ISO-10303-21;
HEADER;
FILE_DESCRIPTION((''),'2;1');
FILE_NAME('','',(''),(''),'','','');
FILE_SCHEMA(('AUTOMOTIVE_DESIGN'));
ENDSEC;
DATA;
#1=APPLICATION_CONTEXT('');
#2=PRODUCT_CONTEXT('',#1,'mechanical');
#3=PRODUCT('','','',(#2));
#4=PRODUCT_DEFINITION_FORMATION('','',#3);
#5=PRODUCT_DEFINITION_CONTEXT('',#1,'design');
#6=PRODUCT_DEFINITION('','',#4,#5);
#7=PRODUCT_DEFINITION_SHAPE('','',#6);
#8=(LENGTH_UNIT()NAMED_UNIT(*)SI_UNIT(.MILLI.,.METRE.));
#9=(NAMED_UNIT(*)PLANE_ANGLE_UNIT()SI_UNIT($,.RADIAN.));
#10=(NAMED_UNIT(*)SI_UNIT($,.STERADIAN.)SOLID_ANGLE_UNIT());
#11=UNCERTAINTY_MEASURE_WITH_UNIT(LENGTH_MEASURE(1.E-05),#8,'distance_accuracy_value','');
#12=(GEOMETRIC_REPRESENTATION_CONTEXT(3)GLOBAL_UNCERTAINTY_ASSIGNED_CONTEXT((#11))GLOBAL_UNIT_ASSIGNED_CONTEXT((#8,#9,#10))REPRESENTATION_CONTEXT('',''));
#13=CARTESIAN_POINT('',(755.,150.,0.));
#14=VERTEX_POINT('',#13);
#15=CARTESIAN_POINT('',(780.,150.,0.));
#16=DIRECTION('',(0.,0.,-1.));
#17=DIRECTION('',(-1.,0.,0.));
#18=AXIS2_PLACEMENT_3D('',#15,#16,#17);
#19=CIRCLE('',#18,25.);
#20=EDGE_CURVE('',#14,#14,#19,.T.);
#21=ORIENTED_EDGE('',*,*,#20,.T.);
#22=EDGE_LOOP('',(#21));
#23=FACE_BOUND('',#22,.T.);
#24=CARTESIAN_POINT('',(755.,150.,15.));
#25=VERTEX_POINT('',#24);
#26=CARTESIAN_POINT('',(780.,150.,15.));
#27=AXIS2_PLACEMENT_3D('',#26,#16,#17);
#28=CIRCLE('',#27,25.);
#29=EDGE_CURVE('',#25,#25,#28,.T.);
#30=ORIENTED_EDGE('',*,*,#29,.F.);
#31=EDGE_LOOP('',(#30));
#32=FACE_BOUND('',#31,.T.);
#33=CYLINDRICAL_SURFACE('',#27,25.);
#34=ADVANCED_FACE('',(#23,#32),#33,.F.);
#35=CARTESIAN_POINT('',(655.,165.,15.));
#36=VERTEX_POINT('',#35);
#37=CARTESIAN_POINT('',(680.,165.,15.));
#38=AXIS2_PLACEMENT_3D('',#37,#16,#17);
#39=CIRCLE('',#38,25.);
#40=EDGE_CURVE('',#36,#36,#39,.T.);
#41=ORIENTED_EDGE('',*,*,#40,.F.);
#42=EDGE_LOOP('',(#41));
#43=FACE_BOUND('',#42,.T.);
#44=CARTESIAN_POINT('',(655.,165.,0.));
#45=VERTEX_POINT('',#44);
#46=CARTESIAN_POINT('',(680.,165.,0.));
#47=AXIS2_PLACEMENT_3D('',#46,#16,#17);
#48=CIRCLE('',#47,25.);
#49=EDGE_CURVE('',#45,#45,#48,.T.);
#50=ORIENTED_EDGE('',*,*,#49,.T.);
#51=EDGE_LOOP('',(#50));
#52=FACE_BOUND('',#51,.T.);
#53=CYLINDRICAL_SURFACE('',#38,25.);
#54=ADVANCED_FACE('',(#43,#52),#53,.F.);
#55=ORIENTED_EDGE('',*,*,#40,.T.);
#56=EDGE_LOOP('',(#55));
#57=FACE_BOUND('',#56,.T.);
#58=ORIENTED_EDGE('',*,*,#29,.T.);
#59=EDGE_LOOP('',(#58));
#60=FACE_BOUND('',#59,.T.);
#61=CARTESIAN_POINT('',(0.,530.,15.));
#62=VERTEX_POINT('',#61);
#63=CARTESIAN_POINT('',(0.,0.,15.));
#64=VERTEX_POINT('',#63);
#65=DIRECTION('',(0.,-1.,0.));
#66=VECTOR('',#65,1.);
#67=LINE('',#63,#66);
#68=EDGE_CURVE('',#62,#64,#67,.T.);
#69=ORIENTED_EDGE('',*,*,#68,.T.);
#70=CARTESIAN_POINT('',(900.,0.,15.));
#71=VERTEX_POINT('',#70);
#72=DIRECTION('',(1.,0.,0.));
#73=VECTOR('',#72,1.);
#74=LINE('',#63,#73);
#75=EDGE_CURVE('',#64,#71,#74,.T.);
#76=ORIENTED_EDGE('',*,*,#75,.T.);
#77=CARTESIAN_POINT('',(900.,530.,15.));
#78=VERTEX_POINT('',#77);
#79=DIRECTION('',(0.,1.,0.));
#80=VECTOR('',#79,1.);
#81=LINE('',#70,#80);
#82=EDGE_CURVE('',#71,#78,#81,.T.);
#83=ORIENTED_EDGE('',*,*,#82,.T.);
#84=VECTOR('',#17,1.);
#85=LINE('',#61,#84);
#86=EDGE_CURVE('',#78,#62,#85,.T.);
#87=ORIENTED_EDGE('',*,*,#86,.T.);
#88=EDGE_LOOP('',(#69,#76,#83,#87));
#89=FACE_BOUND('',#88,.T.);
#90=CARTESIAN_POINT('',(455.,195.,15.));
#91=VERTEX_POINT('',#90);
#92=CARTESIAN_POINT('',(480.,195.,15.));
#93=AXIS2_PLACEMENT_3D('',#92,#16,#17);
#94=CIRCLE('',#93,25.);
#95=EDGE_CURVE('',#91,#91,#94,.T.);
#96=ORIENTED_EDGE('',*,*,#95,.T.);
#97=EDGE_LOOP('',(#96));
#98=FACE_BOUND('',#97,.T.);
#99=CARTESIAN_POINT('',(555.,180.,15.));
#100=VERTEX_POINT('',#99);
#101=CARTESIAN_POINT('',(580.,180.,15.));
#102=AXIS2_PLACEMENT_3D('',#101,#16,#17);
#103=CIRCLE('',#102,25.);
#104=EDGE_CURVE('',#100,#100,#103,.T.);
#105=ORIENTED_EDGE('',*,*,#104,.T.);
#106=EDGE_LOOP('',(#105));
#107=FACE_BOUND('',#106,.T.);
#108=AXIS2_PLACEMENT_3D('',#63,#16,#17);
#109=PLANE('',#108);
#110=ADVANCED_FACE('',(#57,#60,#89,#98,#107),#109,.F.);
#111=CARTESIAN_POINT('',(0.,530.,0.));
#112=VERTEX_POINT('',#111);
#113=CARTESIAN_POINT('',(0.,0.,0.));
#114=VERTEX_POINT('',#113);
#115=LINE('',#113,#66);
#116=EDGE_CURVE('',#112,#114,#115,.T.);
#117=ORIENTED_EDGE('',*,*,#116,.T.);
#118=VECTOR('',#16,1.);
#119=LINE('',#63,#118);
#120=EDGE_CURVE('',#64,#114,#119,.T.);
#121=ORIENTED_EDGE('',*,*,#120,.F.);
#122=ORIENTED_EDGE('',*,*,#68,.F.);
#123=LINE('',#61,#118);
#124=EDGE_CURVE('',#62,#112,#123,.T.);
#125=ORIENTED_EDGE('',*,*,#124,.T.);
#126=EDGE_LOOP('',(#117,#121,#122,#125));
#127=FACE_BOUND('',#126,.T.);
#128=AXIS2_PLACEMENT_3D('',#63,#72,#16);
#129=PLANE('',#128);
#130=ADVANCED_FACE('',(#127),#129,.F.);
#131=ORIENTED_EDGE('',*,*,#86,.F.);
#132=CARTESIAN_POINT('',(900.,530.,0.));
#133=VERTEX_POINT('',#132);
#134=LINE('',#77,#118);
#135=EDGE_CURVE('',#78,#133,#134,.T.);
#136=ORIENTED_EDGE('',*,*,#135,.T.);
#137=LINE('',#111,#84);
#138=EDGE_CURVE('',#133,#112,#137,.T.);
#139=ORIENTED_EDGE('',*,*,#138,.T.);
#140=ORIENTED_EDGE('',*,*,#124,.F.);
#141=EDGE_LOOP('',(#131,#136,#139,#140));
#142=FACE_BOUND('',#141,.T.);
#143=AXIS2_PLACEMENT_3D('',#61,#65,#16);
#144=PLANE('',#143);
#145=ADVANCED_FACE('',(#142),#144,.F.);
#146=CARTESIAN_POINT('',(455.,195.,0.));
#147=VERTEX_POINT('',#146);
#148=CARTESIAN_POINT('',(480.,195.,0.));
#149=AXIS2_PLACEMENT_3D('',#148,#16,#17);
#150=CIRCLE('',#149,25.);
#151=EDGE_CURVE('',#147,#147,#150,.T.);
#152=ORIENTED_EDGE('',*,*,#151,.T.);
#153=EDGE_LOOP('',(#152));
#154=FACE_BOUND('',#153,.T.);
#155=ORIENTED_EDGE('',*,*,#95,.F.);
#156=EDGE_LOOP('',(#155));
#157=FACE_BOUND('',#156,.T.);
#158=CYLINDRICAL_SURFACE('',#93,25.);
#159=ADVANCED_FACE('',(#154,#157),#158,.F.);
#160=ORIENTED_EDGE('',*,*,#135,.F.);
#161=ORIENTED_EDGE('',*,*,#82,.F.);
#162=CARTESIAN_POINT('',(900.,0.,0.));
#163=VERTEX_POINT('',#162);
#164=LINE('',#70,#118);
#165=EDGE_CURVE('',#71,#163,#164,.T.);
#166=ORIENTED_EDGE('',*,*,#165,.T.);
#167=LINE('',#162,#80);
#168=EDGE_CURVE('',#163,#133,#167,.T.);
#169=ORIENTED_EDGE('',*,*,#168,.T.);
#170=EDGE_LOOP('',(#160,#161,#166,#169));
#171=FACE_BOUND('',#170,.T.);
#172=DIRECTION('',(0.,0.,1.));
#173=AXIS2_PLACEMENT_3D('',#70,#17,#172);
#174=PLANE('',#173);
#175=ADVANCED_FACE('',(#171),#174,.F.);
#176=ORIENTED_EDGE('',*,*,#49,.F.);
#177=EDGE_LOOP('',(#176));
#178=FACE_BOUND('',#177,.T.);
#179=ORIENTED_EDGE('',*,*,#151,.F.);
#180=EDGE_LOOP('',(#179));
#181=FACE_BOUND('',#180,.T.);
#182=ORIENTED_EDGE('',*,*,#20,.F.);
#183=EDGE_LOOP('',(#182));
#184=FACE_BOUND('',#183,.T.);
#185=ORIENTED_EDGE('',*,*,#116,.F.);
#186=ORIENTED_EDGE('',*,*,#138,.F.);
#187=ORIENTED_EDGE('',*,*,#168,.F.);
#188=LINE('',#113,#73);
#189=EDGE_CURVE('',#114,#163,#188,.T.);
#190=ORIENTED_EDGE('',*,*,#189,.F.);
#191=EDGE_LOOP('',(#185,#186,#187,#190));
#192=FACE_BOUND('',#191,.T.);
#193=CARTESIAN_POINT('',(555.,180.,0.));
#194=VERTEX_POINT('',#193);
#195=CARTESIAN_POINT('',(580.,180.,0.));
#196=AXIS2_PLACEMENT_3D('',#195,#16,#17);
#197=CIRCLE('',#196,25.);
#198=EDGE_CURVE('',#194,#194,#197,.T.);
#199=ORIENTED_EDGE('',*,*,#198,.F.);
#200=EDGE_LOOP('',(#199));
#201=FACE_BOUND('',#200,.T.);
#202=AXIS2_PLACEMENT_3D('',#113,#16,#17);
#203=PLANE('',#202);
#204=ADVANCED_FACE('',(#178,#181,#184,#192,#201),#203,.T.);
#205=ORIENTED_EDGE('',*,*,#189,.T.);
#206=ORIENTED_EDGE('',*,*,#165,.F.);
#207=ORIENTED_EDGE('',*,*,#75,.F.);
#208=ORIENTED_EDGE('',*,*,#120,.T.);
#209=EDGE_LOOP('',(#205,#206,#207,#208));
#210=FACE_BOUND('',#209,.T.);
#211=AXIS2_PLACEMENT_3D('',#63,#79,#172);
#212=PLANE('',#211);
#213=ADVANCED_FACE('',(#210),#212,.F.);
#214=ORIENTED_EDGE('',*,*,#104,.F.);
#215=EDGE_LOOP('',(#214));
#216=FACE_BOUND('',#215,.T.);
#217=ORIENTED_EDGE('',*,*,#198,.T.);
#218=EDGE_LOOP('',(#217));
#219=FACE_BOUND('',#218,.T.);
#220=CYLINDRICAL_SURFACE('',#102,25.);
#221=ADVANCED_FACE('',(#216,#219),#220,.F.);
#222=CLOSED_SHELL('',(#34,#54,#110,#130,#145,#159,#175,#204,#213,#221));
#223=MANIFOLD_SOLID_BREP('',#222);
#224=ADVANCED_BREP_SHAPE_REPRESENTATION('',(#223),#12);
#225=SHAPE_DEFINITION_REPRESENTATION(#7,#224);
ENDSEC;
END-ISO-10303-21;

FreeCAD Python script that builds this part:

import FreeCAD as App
import Part
import Sketcher


def add_polygon(sketch, points):
    """Adds a closed chain of lines whose ends are joined by coincident constraints."""
    first, n = sketch.GeometryCount, len(points)
    for a, b in zip(points, points[1:] + points[:1]):
        sketch.addGeometry(Part.LineSegment(App.Vector(*a, 0), App.Vector(*b, 0)), False)
    for i in range(n):
        sketch.addConstraint(Sketcher.Constraint("Coincident", first + i, 2, first + (i + 1) % n, 1))

doc = App.newDocument("Part")
body = doc.addObject("PartDesign::Body", "Body")

# Sketch on XY plane
sketch1 = body.newObject("Sketcher::SketchObject", "Sketch")
sketch1.AttachmentSupport = (doc.getObject("XY_Plane"), [""])
sketch1.MapMode = "FlatFace"
add_polygon(sketch1, [(0, 530), (0, 0), (900, 0), (900, 530)])  # lines 0-3
sketch1.addConstraint(Sketcher.Constraint("Vertical", 0))
sketch1.addConstraint(Sketcher.Constraint("Horizontal", 1))
sketch1.addConstraint(Sketcher.Constraint("Vertical", 2))
sketch1.addConstraint(Sketcher.Constraint("Horizontal", 3))
sketch1.addConstraint(Sketcher.Constraint("Coincident", 0, 2, -1, 1))
sketch1.addConstraint(Sketcher.Constraint("DistanceX", 1, 1, 1, 2, 900.0))
sketch1.addConstraint(Sketcher.Constraint("DistanceY", 0, 2, 0, 1, 530.0))
pad1 = body.newObject("PartDesign::Pad", "Pad")
pad1.Profile = sketch1
pad1.Length = 15

# Sketch on XY plane
sketch2 = body.newObject("Sketcher::SketchObject", "Sketch001")
sketch2.AttachmentSupport = (doc.getObject("XY_Plane"), [""])
sketch2.MapMode = "FlatFace"
sketch2.addGeometry(Part.Circle(App.Vector(780, 150, 0), App.Vector(0, 0, 1), 25), False)
sketch2.addGeometry(Part.Circle(App.Vector(680, 165, 0), App.Vector(0, 0, 1), 25), False)
sketch2.addGeometry(Part.Circle(App.Vector(580, 180, 0), App.Vector(0, 0, 1), 25), False)
sketch2.addGeometry(Part.Circle(App.Vector(480, 195, 0), App.Vector(0, 0, 1), 25), False)
sketch2.addConstraint(Sketcher.Constraint("Equal", 0, 1))
sketch2.addConstraint(Sketcher.Constraint("Equal", 1, 2))
sketch2.addConstraint(Sketcher.Constraint("Equal", 2, 3))
sketch2.addConstraint(Sketcher.Constraint("Diameter", 0, 50.0))
sketch2.addConstraint(Sketcher.Constraint("DistanceX", -1, 1, 0, 3, 780.0))
sketch2.addConstraint(Sketcher.Constraint("DistanceY", -1, 1, 0, 3, 150.0))
sketch2.addConstraint(Sketcher.Constraint("DistanceX", -1, 1, 1, 3, 680.0))
sketch2.addConstraint(Sketcher.Constraint("DistanceY", -1, 1, 1, 3, 165.0))
sketch2.addConstraint(Sketcher.Constraint("DistanceX", -1, 1, 2, 3, 580.0))
sketch2.addConstraint(Sketcher.Constraint("DistanceY", -1, 1, 2, 3, 180.0))
sketch2.addConstraint(Sketcher.Constraint("DistanceX", -1, 1, 3, 3, 480.0))
sketch2.addConstraint(Sketcher.Constraint("DistanceY", -1, 1, 3, 3, 195.0))
pocket1 = body.newObject("PartDesign::Pocket", "Pocket")
pocket1.Profile = sketch2
pocket1.Type = "ThroughAll"
pocket1.Reversed = True

doc.recompute()
